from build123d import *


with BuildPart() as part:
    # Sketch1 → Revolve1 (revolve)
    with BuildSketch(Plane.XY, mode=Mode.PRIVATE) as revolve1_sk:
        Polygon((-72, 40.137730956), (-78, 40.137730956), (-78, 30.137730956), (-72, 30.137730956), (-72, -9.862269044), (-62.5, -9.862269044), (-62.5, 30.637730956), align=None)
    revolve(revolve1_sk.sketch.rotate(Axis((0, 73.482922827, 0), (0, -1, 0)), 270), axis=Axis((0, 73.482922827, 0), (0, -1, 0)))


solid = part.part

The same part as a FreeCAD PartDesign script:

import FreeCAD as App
import Part
import Sketcher

V = App.Vector
Q = App.Units.Quantity


def add_polygon(sketch, points):
    """Adds a closed chain of lines whose ends are joined by coincident constraints."""
    first, n = sketch.GeometryCount, len(points)
    for a, b in zip(points, points[1:] + points[:1]):
        sketch.addGeometry(Part.LineSegment(App.Vector(*a, 0), App.Vector(*b, 0)), False)
    for i in range(n):
        sketch.addConstraint(Sketcher.Constraint("Coincident", first + i, 2, first + (i + 1) % n, 1))

doc = App.newDocument("Part")
body = doc.addObject("PartDesign::Body", "Body")

# Sketch on XY plane
sketch1 = body.newObject("Sketcher::SketchObject", "Sketch")
sketch1.AttachmentSupport = (doc.getObject("XY_Plane"), [""])
sketch1.MapMode = "FlatFace"
add_polygon(sketch1, [(-72, 40), (-78, 40), (-78, 30), (-72, 30), (-72, -10), (-62, -10), (-62, 31)])  # lines 0-6
sketch1.addConstraint([
    Sketcher.Constraint("Horizontal", 0),
    Sketcher.Constraint("Vertical", 1),
    Sketcher.Constraint("Horizontal", 2),
    Sketcher.Constraint("Vertical", 3),
    Sketcher.Constraint("Horizontal", 4),
    Sketcher.Constraint("Vertical", 5),
    Sketcher.Constraint("Vertical", 3, 2, 6, 2),
    Sketcher.Constraint("DistanceX", 0, 2, 0, 1, Q("6 mm")),
    Sketcher.Constraint("DistanceY", 1, 2, 1, 1, Q("10 mm")),
    Sketcher.Constraint("DistanceY", 3, 2, 3, 1, Q("40 mm")),
    Sketcher.Constraint("Angle", 6, Q("135 deg")),
    Sketcher.Constraint("DistanceX", 4, 1, 4, 2, Q("9.5 mm")),
    Sketcher.Constraint("DistanceX", 0, 2, -1, 1, Q("78 mm")),
    Sketcher.Constraint("DistanceY", -1, 1, 0, 2, Q("40.137731 mm")),
])
revolution = body.newObject("PartDesign::Revolution", "Revolution")
revolution.Profile = sketch1
revolution.ReferenceAxis = (sketch1, ["V_Axis"])
revolution.Angle = 360

doc.recompute()
